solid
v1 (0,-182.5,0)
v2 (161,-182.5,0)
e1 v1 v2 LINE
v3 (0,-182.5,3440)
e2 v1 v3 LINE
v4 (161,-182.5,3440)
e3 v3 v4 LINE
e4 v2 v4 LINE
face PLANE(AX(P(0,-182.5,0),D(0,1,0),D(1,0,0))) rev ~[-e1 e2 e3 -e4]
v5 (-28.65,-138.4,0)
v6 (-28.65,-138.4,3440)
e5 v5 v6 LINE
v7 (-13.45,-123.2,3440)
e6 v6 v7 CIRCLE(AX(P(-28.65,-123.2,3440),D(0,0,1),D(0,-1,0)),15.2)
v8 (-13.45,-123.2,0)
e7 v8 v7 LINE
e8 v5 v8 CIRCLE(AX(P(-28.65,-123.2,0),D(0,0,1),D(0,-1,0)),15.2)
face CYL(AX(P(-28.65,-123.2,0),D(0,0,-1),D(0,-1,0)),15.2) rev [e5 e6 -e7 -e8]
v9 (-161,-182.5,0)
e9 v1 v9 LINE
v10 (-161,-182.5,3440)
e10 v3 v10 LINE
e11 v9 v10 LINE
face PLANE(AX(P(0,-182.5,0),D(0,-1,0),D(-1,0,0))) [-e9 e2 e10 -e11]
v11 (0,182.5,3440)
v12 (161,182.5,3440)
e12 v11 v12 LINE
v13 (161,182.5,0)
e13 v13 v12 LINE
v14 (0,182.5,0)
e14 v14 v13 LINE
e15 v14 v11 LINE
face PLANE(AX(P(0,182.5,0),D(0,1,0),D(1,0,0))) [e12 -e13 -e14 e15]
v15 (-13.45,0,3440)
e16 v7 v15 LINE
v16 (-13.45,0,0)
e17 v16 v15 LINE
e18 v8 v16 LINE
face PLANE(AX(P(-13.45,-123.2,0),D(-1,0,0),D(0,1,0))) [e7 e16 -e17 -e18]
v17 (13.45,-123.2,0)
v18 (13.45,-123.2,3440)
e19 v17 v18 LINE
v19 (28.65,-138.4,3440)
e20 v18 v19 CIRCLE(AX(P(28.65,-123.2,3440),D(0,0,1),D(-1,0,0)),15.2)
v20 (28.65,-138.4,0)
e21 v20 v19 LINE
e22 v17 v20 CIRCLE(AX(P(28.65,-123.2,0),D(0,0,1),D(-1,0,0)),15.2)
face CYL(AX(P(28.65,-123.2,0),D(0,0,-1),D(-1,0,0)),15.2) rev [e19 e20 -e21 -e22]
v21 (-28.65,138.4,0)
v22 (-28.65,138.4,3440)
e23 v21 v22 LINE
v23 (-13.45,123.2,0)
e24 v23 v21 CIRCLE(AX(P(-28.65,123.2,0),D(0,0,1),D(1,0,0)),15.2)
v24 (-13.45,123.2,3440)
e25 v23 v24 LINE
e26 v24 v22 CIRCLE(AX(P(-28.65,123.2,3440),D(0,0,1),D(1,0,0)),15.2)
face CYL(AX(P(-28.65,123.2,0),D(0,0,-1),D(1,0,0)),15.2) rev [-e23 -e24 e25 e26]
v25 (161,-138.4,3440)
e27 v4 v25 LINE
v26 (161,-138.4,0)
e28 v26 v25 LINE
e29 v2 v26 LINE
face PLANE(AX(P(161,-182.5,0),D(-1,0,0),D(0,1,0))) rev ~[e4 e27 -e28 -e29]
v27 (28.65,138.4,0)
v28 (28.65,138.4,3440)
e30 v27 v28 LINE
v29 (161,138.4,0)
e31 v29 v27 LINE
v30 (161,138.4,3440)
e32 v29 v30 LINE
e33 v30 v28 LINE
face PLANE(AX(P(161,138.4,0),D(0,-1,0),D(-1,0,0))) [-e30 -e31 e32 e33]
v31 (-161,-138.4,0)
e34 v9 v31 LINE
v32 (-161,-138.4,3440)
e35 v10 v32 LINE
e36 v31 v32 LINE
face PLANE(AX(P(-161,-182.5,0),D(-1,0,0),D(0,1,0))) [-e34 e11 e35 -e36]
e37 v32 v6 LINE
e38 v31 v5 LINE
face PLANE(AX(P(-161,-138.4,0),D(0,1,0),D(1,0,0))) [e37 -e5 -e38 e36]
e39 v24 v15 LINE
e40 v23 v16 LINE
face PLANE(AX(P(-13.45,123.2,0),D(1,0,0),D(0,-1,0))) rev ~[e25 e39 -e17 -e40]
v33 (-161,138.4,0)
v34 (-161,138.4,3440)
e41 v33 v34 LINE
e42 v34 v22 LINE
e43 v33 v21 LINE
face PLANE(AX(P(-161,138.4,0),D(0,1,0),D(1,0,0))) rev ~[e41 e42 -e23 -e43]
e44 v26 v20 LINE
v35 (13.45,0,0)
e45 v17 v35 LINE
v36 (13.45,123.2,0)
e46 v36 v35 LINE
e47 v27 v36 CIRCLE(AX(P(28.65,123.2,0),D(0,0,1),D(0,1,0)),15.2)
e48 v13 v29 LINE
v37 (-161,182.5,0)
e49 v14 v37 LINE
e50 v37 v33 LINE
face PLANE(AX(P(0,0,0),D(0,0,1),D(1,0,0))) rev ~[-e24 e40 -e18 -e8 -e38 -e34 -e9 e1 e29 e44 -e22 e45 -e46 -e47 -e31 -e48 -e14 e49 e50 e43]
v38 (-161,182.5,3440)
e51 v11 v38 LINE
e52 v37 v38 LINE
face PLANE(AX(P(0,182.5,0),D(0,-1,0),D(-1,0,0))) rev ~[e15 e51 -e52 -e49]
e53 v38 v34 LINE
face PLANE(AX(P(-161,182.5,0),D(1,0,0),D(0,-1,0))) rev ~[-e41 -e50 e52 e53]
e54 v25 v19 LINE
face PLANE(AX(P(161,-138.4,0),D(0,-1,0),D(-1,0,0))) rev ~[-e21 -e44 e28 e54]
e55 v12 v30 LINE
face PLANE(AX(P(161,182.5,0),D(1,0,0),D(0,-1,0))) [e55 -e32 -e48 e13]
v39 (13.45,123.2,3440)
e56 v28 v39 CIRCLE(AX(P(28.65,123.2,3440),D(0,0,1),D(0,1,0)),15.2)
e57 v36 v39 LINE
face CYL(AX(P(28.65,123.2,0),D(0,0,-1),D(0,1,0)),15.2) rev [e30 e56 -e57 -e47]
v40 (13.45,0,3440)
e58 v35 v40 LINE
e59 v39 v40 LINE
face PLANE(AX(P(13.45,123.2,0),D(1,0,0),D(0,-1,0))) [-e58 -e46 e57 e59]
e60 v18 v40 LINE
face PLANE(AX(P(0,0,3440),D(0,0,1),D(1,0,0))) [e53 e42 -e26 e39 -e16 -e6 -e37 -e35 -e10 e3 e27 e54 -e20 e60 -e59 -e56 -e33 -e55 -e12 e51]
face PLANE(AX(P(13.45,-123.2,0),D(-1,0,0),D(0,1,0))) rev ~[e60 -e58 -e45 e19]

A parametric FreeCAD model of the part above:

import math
import FreeCAD as App
import Part
import Sketcher
from FreeCAD import Vector
Q = App.Units.Quantity

doc = App.newDocument("Part")
params = doc.addObject("Spreadsheet::Sheet", "Params")
for row, (alias, value) in enumerate([
    ("sketch1_radius", "15.2 mm"),
    ("sketch1_height", "44.1 mm"),
    ("pad1_length", "3440 mm"),
], start=1):
    params.set(f"A{row}", alias)
    params.set(f"B{row}", "=" + value)
    params.setAlias(f"B{row}", alias)

body = doc.addObject("PartDesign::Body", "Body")

sketch1 = body.newObject("Sketcher::SketchObject", "Sketch")
sketch1.AttachmentSupport = (doc.getObject("XY_Plane"), [""])
sketch1.MapMode = "FlatFace"
sketch1.addGeometry(Part.LineSegment(Vector(-161, -138, 0), Vector(-161, -182, 0)), False)
sketch1.addGeometry(Part.LineSegment(Vector(-161, -182, 0), Vector(161, -182, 0)), False)
sketch1.addGeometry(Part.LineSegment(Vector(161, -182, 0), Vector(161, -138, 0)), False)
sketch1.addGeometry(Part.LineSegment(Vector(161, -138, 0), Vector(29, -138, 0)), False)
sketch1.addGeometry(Part.ArcOfCircle(Part.Circle(Vector(29, -123, 0), Vector(0, 0, 1), 15), math.radians(180), math.radians(270)), False)
sketch1.addGeometry(Part.LineSegment(Vector(13, -123, 0), Vector(13, 123, 0)), False)
sketch1.addGeometry(Part.ArcOfCircle(Part.Circle(Vector(29, 123, 0), Vector(0, 0, 1), 15), math.radians(90), math.radians(180)), False)
sketch1.addGeometry(Part.LineSegment(Vector(29, 138, 0), Vector(161, 138, 0)), False)
sketch1.addGeometry(Part.LineSegment(Vector(161, 138, 0), Vector(161, 182, 0)), False)
sketch1.addGeometry(Part.LineSegment(Vector(161, 182, 0), Vector(-161, 182, 0)), False)
sketch1.addGeometry(Part.LineSegment(Vector(-161, 182, 0), Vector(-161, 138, 0)), False)
sketch1.addGeometry(Part.LineSegment(Vector(-161, 138, 0), Vector(-29, 138, 0)), False)
sketch1.addGeometry(Part.ArcOfCircle(Part.Circle(Vector(-29, 123, 0), Vector(0, 0, 1), 15), math.radians(0), math.radians(90)), False)
sketch1.addGeometry(Part.LineSegment(Vector(-13, 123, 0), Vector(-13, -123, 0)), False)
sketch1.addGeometry(Part.ArcOfCircle(Part.Circle(Vector(-29, -123, 0), Vector(0, 0, 1), 15), math.radians(-90), math.radians(0)), False)
sketch1.addGeometry(Part.LineSegment(Vector(-29, -138, 0), Vector(-161, -138, 0)), False)
sketch1.addConstraint(Sketcher.Constraint("Coincident", 0, 2, 1, 1))
sketch1.addConstraint(Sketcher.Constraint("Coincident", 1, 2, 2, 1))
sketch1.addConstraint(Sketcher.Constraint("Coincident", 2, 2, 3, 1))
sketch1.addConstraint(Sketcher.Constraint("Tangent", 3, 2, 4, 2))
sketch1.addConstraint(Sketcher.Constraint("Tangent", 4, 1, 5, 1))
sketch1.addConstraint(Sketcher.Constraint("Tangent", 5, 2, 6, 2))
sketch1.addConstraint(Sketcher.Constraint("Tangent", 6, 1, 7, 1))
sketch1.addConstraint(Sketcher.Constraint("Coincident", 7, 2, 8, 1))
sketch1.addConstraint(Sketcher.Constraint("Coincident", 8, 2, 9, 1))
sketch1.addConstraint(Sketcher.Constraint("Coincident", 9, 2, 10, 1))
sketch1.addConstraint(Sketcher.Constraint("Coincident", 10, 2, 11, 1))
sketch1.addConstraint(Sketcher.Constraint("Tangent", 11, 2, 12, 2))
sketch1.addConstraint(Sketcher.Constraint("Tangent", 12, 1, 13, 1))
sketch1.addConstraint(Sketcher.Constraint("Tangent", 13, 2, 14, 2))
sketch1.addConstraint(Sketcher.Constraint("Tangent", 14, 1, 15, 1))
sketch1.addConstraint(Sketcher.Constraint("Coincident", 15, 2, 0, 1))
sketch1.addConstraint(Sketcher.Constraint("Vertical", 0))
sketch1.addConstraint(Sketcher.Constraint("Horizontal", 1))
sketch1.addConstraint(Sketcher.Constraint("Vertical", 2))
sketch1.addConstraint(Sketcher.Constraint("Horizontal", 3))
sketch1.addConstraint(Sketcher.Constraint("Vertical", 5))
sketch1.addConstraint(Sketcher.Constraint("Horizontal", 7))
sketch1.addConstraint(Sketcher.Constraint("Vertical", 8))
sketch1.addConstraint(Sketcher.Constraint("Horizontal", 9))
sketch1.addConstraint(Sketcher.Constraint("Vertical", 10))
sketch1.addConstraint(Sketcher.Constraint("Horizontal", 11))
sketch1.addConstraint(Sketcher.Constraint("Vertical", 13))
sketch1.addConstraint(Sketcher.Constraint("Horizontal", 15))
sketch1.addConstraint(Sketcher.Constraint("Equal", 4, 6))
sketch1.addConstraint(Sketcher.Constraint("Equal", 6, 12))
sketch1.addConstraint(Sketcher.Constraint("Equal", 12, 14))
sketch1.addConstraint(Sketcher.Constraint("Symmetric", 4, 3, 12, 3, -1, 1))
sketch1.addConstraint(Sketcher.Constraint("Symmetric", 0, 2, 8, 2, -1, 1))
sketch1.addConstraint(Sketcher.Constraint("Symmetric", 7, 2, 10, 2, -2))
sketch1.addConstraint(Sketcher.Constraint("Symmetric", 2, 2, 15, 2, -2))
sketch1.addConstraint(Sketcher.Constraint("Radius", 4, Q("15.2 mm")))
sketch1.addConstraint(Sketcher.Constraint("DistanceY", 0, 2, 0, 1, Q("44.1 mm")))
sketch1.addConstraint(Sketcher.Constraint("DistanceX", 0, 2, -1, 1, Q("161 mm")))
sketch1.addConstraint(Sketcher.Constraint("DistanceY", 0, 2, -1, 1, Q("182.5 mm")))
sketch1.addConstraint(Sketcher.Constraint("DistanceX", -1, 1, 4, 1, Q("13.45 mm")))
sketch1.setExpression("Constraints[35]", "Params.sketch1_radius")
sketch1.setExpression("Constraints[36]", "Params.sketch1_height")
pad1 = body.newObject("PartDesign::Pad", "Pad")
pad1.Profile = sketch1
pad1.setExpression("Length", "Params.pad1_length")

doc.recompute()
